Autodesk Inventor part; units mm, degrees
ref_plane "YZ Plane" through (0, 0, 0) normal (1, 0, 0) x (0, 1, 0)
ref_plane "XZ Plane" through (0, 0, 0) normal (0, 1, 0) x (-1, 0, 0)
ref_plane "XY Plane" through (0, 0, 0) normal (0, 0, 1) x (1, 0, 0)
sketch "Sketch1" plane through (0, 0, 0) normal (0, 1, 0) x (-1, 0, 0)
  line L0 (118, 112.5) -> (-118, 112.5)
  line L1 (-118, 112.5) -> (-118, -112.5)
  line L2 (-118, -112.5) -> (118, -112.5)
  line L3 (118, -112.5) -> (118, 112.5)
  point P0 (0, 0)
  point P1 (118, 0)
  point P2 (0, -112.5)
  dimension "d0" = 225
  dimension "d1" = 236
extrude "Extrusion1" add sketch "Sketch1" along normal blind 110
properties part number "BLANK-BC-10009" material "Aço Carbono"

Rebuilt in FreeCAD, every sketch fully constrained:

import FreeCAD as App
import Part
import Sketcher
Q = App.Units.Quantity

doc = App.newDocument("Part")
body = doc.addObject("PartDesign::Body", "Body")

# Sketch on XZ plane
sketch1 = body.newObject("Sketcher::SketchObject", "Sketch")
sketch1.AttachmentSupport = (doc.getObject("XZ_Plane"), [""])
sketch1.MapMode = "FlatFace"
sketch1.addGeometry([
    Part.LineSegment(App.Vector(-118, -112, 0), App.Vector(-118, 112, 0)),
    Part.LineSegment(App.Vector(-118, 112, 0), App.Vector(118, 112, 0)),
    Part.LineSegment(App.Vector(118, 112, 0), App.Vector(118, -112, 0)),
    Part.LineSegment(App.Vector(118, -112, 0), App.Vector(-118, -112, 0)),
], False)
sketch1.addConstraint([
    Sketcher.Constraint("Coincident", 0, 2, 1, 1),
    Sketcher.Constraint("Coincident", 1, 2, 2, 1),
    Sketcher.Constraint("Coincident", 2, 2, 3, 1),
    Sketcher.Constraint("Coincident", 3, 2, 0, 1),
    Sketcher.Constraint("Vertical", 0),
    Sketcher.Constraint("Horizontal", 1),
    Sketcher.Constraint("Vertical", 2),
    Sketcher.Constraint("Horizontal", 3),
    Sketcher.Constraint("Symmetric", 0, 2, 2, 2, -1, 1),
    Sketcher.Constraint("DistanceX", 1, 1, 1, 2, Q("236 mm")),
    Sketcher.Constraint("DistanceY", 0, 1, 0, 2, Q("225 mm")),
])
pad1 = body.newObject("PartDesign::Pad", "Pad")
pad1.Profile = sketch1
pad1.Length = 110
pad1.Reversed = True

doc.recompute()
